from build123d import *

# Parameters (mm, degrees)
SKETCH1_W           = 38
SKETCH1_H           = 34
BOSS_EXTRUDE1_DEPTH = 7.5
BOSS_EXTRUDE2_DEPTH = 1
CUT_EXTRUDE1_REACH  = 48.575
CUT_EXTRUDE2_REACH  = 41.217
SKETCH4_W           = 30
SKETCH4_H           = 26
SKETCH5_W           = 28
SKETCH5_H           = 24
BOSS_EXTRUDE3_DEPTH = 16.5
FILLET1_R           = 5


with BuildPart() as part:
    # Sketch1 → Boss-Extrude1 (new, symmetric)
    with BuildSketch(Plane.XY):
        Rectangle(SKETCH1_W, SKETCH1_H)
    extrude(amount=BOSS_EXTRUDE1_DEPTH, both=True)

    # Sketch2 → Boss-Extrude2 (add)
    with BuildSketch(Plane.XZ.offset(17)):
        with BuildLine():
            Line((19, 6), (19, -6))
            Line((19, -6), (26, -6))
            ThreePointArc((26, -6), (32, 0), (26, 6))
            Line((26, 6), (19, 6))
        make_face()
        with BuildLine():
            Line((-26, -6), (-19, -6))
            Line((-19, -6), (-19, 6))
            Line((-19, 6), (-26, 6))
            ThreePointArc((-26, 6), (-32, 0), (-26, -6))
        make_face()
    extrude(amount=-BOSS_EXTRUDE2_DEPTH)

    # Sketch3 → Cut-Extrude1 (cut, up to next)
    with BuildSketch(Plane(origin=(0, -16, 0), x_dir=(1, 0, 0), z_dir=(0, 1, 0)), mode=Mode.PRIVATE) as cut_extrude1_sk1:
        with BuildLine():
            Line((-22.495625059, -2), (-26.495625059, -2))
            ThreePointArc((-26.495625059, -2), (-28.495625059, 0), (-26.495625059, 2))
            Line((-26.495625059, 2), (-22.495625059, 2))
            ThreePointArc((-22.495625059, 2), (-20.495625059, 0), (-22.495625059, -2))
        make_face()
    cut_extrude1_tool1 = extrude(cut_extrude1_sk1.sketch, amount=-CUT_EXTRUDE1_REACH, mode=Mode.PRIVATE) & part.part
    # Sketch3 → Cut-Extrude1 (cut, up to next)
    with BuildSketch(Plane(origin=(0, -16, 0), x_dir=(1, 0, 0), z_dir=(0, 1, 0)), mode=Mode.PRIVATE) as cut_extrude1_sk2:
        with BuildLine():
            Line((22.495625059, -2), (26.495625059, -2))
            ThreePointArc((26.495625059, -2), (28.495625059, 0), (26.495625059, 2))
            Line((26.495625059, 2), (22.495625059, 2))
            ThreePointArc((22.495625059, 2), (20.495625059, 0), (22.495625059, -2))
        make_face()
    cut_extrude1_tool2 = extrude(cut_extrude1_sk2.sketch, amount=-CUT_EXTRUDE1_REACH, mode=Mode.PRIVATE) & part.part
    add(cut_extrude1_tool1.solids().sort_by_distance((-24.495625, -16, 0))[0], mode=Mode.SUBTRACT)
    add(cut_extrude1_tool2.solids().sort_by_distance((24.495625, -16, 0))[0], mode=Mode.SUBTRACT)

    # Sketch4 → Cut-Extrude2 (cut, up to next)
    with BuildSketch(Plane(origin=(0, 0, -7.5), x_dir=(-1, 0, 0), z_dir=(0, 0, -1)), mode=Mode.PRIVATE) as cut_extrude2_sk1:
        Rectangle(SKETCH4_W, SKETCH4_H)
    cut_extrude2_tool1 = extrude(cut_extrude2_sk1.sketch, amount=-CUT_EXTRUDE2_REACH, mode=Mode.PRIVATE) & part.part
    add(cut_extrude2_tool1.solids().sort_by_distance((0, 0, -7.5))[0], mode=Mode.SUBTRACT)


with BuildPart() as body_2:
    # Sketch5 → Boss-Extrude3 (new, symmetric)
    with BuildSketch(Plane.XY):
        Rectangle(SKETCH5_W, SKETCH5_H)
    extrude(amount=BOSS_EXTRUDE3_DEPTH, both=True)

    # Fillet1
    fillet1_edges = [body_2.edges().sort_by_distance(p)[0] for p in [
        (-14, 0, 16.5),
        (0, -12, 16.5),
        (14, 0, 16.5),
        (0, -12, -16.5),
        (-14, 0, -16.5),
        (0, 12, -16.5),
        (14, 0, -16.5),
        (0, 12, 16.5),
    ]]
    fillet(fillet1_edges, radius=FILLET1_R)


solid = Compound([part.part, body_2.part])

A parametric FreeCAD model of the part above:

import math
import FreeCAD as App
import Part
import Sketcher


def edges_at(feature, points):
    """Names of the edges that pass closest to the given points."""
    edges = feature.Shape.Edges
    near = lambda p: min(range(len(edges)), key=lambda i: edges[i].distToShape(Part.Vertex(*p))[0])
    return sorted({f"Edge{near(p) + 1}" for p in points})

doc = App.newDocument("Part")
body = doc.addObject("PartDesign::Body", "Body")

sketch1 = body.newObject("Sketcher::SketchObject", "Sketch")
sketch1.AttachmentSupport = (doc.getObject("XY_Plane"), [""])
sketch1.MapMode = "FlatFace"
sketch1.addGeometry([
    Part.LineSegment(App.Vector(-19, 17, 0), App.Vector(-19, -17, 0)),
    Part.LineSegment(App.Vector(-19, -17, 0), App.Vector(19, -17, 0)),
    Part.LineSegment(App.Vector(19, -17, 0), App.Vector(19, 17, 0)),
    Part.LineSegment(App.Vector(19, 17, 0), App.Vector(-19, 17, 0)),
], False)
sketch1.addConstraint([
    Sketcher.Constraint("Coincident", 0, 2, 1, 1),
    Sketcher.Constraint("Coincident", 1, 2, 2, 1),
    Sketcher.Constraint("Coincident", 2, 2, 3, 1),
    Sketcher.Constraint("Coincident", 3, 2, 0, 1),
    Sketcher.Constraint("Vertical", 0),
    Sketcher.Constraint("Horizontal", 1),
    Sketcher.Constraint("Vertical", 2),
    Sketcher.Constraint("Horizontal", 3),
    Sketcher.Constraint("Symmetric", 0, 2, 2, 2, -1, 1),
    Sketcher.Constraint("DistanceX", 1, 1, 1, 2, 38.0),
    Sketcher.Constraint("DistanceY", 0, 2, 0, 1, 34.0),
])
pad1 = body.newObject("PartDesign::Pad", "Pad")
pad1.Profile = sketch1
pad1.Length = 15
pad1.Midplane = True

sketch2 = body.newObject("Sketcher::SketchObject", "Sketch001")
sketch2.AttachmentSupport = (doc.getObject("XZ_Plane"), [""])
sketch2.MapMode = "FlatFace"
sketch2.AttachmentOffset = App.Placement(App.Vector(0, 0, 17), App.Rotation())
sketch2.addGeometry([
    Part.LineSegment(App.Vector(19, 6, 0), App.Vector(19, -6, 0)),
    Part.LineSegment(App.Vector(19, -6, 0), App.Vector(26, -6, 0)),
    Part.ArcOfCircle(Part.Circle(App.Vector(26, 0, 0), App.Vector(0, 0, 1), 6), math.radians(-90), math.radians(90)),
    Part.LineSegment(App.Vector(26, 6, 0), App.Vector(19, 6, 0)),
    Part.LineSegment(App.Vector(-26, -6, 0), App.Vector(-19, -6, 0)),
    Part.LineSegment(App.Vector(-19, -6, 0), App.Vector(-19, 6, 0)),
    Part.LineSegment(App.Vector(-19, 6, 0), App.Vector(-26, 6, 0)),
    Part.ArcOfCircle(Part.Circle(App.Vector(-26, 0, 0), App.Vector(0, 0, 1), 6), math.radians(90), math.radians(270)),
], False)
sketch2.addConstraint([
    Sketcher.Constraint("Coincident", 0, 2, 1, 1),
    Sketcher.Constraint("Tangent", 1, 2, 2, 1),
    Sketcher.Constraint("Tangent", 2, 2, 3, 1),
    Sketcher.Constraint("Coincident", 3, 2, 0, 1),
    Sketcher.Constraint("Coincident", 4, 2, 5, 1),
    Sketcher.Constraint("Coincident", 5, 2, 6, 1),
    Sketcher.Constraint("Tangent", 6, 2, 7, 1),
    Sketcher.Constraint("Tangent", 7, 2, 4, 1),
    Sketcher.Constraint("Vertical", 0),
    Sketcher.Constraint("Horizontal", 1),
    Sketcher.Constraint("Horizontal", 3),
    Sketcher.Constraint("Horizontal", 4),
    Sketcher.Constraint("Vertical", 5),
    Sketcher.Constraint("Horizontal", 6),
    Sketcher.Constraint("Equal", 2, 7),
    Sketcher.Constraint("Symmetric", 2, 3, 7, 3, -1, 1),
    Sketcher.Constraint("Symmetric", 0, 2, 4, 2, -2),
    Sketcher.Constraint("Radius", 2, 6.0),
    Sketcher.Constraint("DistanceX", 1, 1, 1, 2, 7.0),
    Sketcher.Constraint("DistanceX", -1, 1, 2, 3, 26.0),
])
pad2 = body.newObject("PartDesign::Pad", "Pad001")
pad2.Profile = sketch2
pad2.Length = 1
pad2.Reversed = True

sketch3 = body.newObject("Sketcher::SketchObject", "Sketch002")
sketch3.AttachmentSupport = (doc.getObject("XZ_Plane"), [""])
sketch3.MapMode = "FlatFace"
sketch3.AttachmentOffset = App.Placement(App.Vector(0, 0, 16), App.Rotation())
sketch3.addGeometry([
    Part.LineSegment(App.Vector(-26.5, 2, 0), App.Vector(-22.5, 2, 0)),
    Part.ArcOfCircle(Part.Circle(App.Vector(-22.5, 0, 0), App.Vector(0, 0, 1), 2), math.radians(-90), math.radians(90)),
    Part.LineSegment(App.Vector(-22.5, -2, 0), App.Vector(-26.5, -2, 0)),
    Part.ArcOfCircle(Part.Circle(App.Vector(-26.5, 0, 0), App.Vector(0, 0, 1), 2), math.radians(90), math.radians(270)),
], False)
sketch3.addConstraint([
    Sketcher.Constraint("Tangent", 0, 2, 1, 2),
    Sketcher.Constraint("Tangent", 1, 1, 2, 1),
    Sketcher.Constraint("Tangent", 2, 2, 3, 2),
    Sketcher.Constraint("Tangent", 3, 1, 0, 1),
    Sketcher.Constraint("Horizontal", 0),
    Sketcher.Constraint("Horizontal", 2),
    Sketcher.Constraint("PointOnObject", 1, 3, -1),
    Sketcher.Constraint("Radius", 1, 2.0),
    Sketcher.Constraint("DistanceX", 0, 1, 0, 2, 4.0),
    Sketcher.Constraint("DistanceX", 1, 3, -1, 1, 22.495625),
])
pocket1 = body.newObject("PartDesign::Pocket", "Pocket")
pocket1.Profile = sketch3
pocket1.Type = "UpToFirst"
pocket1.Reversed = True

sketch4 = body.newObject("Sketcher::SketchObject", "Sketch003")
sketch4.AttachmentSupport = (doc.getObject("XZ_Plane"), [""])
sketch4.MapMode = "FlatFace"
sketch4.AttachmentOffset = App.Placement(App.Vector(0, 0, 16), App.Rotation())
sketch4.addGeometry([
    Part.LineSegment(App.Vector(22.5, 2, 0), App.Vector(26.5, 2, 0)),
    Part.ArcOfCircle(Part.Circle(App.Vector(26.5, 0, 0), App.Vector(0, 0, 1), 2), math.radians(-90), math.radians(90)),
    Part.LineSegment(App.Vector(26.5, -2, 0), App.Vector(22.5, -2, 0)),
    Part.ArcOfCircle(Part.Circle(App.Vector(22.5, 0, 0), App.Vector(0, 0, 1), 2), math.radians(90), math.radians(270)),
], False)
sketch4.addConstraint([
    Sketcher.Constraint("Tangent", 0, 2, 1, 2),
    Sketcher.Constraint("Tangent", 1, 1, 2, 1),
    Sketcher.Constraint("Tangent", 2, 2, 3, 2),
    Sketcher.Constraint("Tangent", 3, 1, 0, 1),
    Sketcher.Constraint("Horizontal", 0),
    Sketcher.Constraint("Horizontal", 2),
    Sketcher.Constraint("PointOnObject", 1, 3, -1),
    Sketcher.Constraint("Radius", 1, 2.0),
    Sketcher.Constraint("DistanceX", 0, 1, 0, 2, 4.0),
    Sketcher.Constraint("DistanceX", -1, 1, 1, 3, 26.495625),
])
pocket2 = body.newObject("PartDesign::Pocket", "Pocket001")
pocket2.Profile = sketch4
pocket2.Type = "UpToFirst"
pocket2.Reversed = True

sketch5 = body.newObject("Sketcher::SketchObject", "Sketch004")
sketch5.AttachmentSupport = (doc.getObject("XY_Plane"), [""])
sketch5.MapMode = "FlatFace"
sketch5.AttachmentOffset = App.Placement(App.Vector(0, 0, -7.5), App.Rotation())
sketch5.addGeometry([
    Part.LineSegment(App.Vector(15, 13, 0), App.Vector(15, -13, 0)),
    Part.LineSegment(App.Vector(15, -13, 0), App.Vector(-15, -13, 0)),
    Part.LineSegment(App.Vector(-15, -13, 0), App.Vector(-15, 13, 0)),
    Part.LineSegment(App.Vector(-15, 13, 0), App.Vector(15, 13, 0)),
], False)
sketch5.addConstraint([
    Sketcher.Constraint("Coincident", 0, 2, 1, 1),
    Sketcher.Constraint("Coincident", 1, 2, 2, 1),
    Sketcher.Constraint("Coincident", 2, 2, 3, 1),
    Sketcher.Constraint("Coincident", 3, 2, 0, 1),
    Sketcher.Constraint("Vertical", 0),
    Sketcher.Constraint("Horizontal", 1),
    Sketcher.Constraint("Vertical", 2),
    Sketcher.Constraint("Horizontal", 3),
    Sketcher.Constraint("Symmetric", 0, 2, 2, 2, -1, 1),
    Sketcher.Constraint("DistanceX", 1, 2, 1, 1, 30.0),
    Sketcher.Constraint("DistanceY", 0, 2, 0, 1, 26.0),
])
pocket3 = body.newObject("PartDesign::Pocket", "Pocket002")
pocket3.Profile = sketch5
pocket3.Type = "UpToFirst"
pocket3.Reversed = True
body2 = doc.addObject("PartDesign::Body", "Body001")

sketch6 = body2.newObject("Sketcher::SketchObject", "Sketch005")
sketch6.AttachmentSupport = (doc.getObject("XY_Plane001"), [""])
sketch6.MapMode = "FlatFace"
sketch6.addGeometry([
    Part.LineSegment(App.Vector(-14, 12, 0), App.Vector(-14, -12, 0)),
    Part.LineSegment(App.Vector(-14, -12, 0), App.Vector(14, -12, 0)),
    Part.LineSegment(App.Vector(14, -12, 0), App.Vector(14, 12, 0)),
    Part.LineSegment(App.Vector(14, 12, 0), App.Vector(-14, 12, 0)),
], False)
sketch6.addConstraint([
    Sketcher.Constraint("Coincident", 0, 2, 1, 1),
    Sketcher.Constraint("Coincident", 1, 2, 2, 1),
    Sketcher.Constraint("Coincident", 2, 2, 3, 1),
    Sketcher.Constraint("Coincident", 3, 2, 0, 1),
    Sketcher.Constraint("Vertical", 0),
    Sketcher.Constraint("Horizontal", 1),
    Sketcher.Constraint("Vertical", 2),
    Sketcher.Constraint("Horizontal", 3),
    Sketcher.Constraint("Symmetric", 0, 2, 2, 2, -1, 1),
    Sketcher.Constraint("DistanceX", 1, 1, 1, 2, 28.0),
    Sketcher.Constraint("DistanceY", 0, 2, 0, 1, 24.0),
])
pad3 = body2.newObject("PartDesign::Pad", "Pad002")
pad3.Profile = sketch6
pad3.Length = 33
pad3.Midplane = True
doc.recompute()

fillet = body2.newObject("PartDesign::Fillet", "Fillet")
fillet.Base = (pad3, edges_at(pad3, [
    (-14, 0, 16.5),
    (0, -12, 16.5),
    (14, 0, 16.5),
    (0, -12, -16.5),
    (-14, 0, -16.5),
    (0, 12, -16.5),
    (14, 0, -16.5),
    (0, 12, 16.5),
]))
fillet.Radius = 5

doc.recompute()
